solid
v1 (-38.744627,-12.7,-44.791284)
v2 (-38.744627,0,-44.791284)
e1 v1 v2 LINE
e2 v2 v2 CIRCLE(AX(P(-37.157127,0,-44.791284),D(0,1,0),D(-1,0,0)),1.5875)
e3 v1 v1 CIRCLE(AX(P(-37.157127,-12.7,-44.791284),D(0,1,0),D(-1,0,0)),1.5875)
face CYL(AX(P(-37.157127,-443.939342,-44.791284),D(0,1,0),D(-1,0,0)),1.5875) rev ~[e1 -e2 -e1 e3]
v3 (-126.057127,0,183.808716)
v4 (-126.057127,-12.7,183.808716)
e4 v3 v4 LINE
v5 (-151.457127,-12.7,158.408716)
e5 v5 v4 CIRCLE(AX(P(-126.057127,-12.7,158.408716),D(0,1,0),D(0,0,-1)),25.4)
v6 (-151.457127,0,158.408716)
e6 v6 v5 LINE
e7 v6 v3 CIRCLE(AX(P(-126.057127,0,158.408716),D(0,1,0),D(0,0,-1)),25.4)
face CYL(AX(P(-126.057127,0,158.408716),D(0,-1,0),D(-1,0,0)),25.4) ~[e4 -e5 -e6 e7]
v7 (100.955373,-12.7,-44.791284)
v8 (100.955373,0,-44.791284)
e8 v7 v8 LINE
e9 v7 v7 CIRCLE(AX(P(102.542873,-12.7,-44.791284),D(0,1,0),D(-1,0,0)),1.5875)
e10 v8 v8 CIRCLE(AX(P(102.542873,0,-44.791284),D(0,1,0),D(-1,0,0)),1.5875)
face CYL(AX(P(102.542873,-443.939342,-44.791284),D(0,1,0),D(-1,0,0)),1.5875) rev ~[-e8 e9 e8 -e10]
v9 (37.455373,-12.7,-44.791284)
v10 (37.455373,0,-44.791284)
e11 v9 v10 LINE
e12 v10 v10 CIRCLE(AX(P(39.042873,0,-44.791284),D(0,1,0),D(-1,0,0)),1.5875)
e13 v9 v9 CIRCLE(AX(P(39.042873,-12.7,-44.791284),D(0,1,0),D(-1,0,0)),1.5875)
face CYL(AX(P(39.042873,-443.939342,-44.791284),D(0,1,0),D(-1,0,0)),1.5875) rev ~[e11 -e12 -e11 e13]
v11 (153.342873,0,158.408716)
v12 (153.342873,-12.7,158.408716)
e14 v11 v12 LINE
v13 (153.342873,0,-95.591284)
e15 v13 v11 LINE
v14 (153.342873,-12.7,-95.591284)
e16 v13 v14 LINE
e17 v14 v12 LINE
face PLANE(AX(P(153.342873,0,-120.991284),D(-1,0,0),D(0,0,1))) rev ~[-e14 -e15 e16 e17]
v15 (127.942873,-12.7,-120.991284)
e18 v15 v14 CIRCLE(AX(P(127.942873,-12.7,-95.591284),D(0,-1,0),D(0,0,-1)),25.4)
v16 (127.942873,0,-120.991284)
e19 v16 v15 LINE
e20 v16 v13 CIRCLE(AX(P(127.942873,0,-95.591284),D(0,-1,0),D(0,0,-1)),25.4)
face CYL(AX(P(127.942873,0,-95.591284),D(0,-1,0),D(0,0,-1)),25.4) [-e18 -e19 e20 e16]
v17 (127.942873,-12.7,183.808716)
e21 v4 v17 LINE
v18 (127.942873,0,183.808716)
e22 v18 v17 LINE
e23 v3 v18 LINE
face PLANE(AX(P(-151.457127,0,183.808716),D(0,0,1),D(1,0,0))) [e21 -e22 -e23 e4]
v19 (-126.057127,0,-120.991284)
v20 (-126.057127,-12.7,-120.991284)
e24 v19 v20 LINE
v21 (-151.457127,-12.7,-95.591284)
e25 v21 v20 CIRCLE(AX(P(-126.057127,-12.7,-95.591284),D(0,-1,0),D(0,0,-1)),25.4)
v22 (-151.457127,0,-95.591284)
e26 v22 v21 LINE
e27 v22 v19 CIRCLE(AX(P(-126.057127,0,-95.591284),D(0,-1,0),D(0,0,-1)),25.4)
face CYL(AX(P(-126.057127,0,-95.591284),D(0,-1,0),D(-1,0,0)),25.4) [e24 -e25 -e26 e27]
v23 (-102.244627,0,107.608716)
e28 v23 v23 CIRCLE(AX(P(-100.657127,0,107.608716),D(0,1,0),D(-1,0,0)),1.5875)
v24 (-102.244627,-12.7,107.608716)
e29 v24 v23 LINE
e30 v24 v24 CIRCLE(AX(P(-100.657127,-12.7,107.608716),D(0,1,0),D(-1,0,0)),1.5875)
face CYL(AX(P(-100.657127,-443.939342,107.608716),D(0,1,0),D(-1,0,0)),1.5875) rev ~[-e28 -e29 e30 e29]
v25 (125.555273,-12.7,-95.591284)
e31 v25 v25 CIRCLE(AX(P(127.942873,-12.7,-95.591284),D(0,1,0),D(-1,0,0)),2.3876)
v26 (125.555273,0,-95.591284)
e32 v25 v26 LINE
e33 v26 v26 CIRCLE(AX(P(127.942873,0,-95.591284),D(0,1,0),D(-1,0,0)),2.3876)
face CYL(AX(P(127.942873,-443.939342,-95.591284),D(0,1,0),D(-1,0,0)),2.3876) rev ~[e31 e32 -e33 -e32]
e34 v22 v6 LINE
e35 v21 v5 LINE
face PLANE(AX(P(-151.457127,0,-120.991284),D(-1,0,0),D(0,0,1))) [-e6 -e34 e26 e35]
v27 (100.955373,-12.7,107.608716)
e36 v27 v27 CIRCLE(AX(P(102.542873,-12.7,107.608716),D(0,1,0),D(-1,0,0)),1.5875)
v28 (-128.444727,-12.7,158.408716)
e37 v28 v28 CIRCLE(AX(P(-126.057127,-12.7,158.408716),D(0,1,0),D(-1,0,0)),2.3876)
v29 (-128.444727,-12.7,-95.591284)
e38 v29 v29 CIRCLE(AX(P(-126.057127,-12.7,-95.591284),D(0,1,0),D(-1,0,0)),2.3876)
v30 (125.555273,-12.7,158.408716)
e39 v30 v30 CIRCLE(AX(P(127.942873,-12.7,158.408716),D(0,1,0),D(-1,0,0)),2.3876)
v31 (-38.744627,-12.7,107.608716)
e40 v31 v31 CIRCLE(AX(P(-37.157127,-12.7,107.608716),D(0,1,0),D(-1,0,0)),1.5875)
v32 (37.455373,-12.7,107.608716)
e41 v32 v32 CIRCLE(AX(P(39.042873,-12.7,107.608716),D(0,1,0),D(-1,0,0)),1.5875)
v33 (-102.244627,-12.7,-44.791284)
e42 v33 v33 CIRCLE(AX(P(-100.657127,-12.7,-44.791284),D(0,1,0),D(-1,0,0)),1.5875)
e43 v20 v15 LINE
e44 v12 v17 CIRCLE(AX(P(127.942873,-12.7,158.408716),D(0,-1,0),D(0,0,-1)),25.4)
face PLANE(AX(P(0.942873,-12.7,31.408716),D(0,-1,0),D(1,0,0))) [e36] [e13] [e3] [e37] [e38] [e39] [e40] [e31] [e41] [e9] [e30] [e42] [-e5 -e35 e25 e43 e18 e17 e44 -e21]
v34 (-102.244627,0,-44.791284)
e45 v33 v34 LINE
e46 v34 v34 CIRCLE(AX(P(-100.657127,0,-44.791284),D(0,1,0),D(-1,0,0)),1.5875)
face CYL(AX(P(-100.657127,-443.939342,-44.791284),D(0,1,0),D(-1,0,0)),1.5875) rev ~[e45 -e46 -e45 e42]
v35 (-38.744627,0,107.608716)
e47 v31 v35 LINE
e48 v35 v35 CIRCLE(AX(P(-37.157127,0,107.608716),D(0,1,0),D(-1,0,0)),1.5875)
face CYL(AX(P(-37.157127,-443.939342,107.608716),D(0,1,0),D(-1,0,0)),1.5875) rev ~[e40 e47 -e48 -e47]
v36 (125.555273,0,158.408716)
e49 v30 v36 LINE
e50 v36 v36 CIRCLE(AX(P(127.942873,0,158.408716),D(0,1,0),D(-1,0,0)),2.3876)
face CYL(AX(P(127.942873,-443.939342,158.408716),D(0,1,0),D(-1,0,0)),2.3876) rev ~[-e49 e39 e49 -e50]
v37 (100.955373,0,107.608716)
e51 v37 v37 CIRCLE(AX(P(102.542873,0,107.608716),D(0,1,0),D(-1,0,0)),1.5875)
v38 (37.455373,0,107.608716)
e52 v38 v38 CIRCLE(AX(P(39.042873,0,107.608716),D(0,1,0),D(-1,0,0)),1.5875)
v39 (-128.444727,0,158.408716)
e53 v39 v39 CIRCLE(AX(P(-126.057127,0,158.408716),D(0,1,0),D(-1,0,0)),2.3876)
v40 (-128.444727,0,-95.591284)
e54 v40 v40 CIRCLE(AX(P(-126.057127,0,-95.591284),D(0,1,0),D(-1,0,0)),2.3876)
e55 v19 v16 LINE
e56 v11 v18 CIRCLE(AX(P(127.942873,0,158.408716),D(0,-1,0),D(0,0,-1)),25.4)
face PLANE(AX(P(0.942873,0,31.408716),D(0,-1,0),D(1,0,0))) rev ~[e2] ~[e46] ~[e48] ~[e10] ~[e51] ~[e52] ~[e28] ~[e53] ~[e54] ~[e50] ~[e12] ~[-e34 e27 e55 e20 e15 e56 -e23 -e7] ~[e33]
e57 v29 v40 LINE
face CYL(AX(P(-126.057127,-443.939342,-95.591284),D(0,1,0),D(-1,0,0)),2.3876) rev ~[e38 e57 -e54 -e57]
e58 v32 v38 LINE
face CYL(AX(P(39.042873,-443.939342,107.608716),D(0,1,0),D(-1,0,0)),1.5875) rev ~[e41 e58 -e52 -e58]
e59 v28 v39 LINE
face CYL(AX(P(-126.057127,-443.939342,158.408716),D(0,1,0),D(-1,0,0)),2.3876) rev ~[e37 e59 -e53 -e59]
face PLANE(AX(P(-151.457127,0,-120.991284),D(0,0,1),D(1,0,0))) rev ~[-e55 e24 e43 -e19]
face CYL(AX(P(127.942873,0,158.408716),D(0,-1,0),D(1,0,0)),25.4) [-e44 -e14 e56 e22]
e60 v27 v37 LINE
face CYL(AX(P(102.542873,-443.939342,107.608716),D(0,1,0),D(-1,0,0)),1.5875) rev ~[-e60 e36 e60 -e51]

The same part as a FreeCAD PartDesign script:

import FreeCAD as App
import Part
import Sketcher

V = App.Vector
Q = App.Units.Quantity


def edges_at(feature, points):
    """Names of the edges that pass closest to the given points."""
    edges = feature.Shape.Edges
    near = lambda p: min(range(len(edges)), key=lambda i: edges[i].distToShape(Part.Vertex(*p))[0])
    return sorted({f"Edge{near(p) + 1}" for p in points})


def add_polygon(sketch, points):
    """Adds a closed chain of lines whose ends are joined by coincident constraints."""
    first, n = sketch.GeometryCount, len(points)
    for a, b in zip(points, points[1:] + points[:1]):
        sketch.addGeometry(Part.LineSegment(App.Vector(*a, 0), App.Vector(*b, 0)), False)
    for i in range(n):
        sketch.addConstraint(Sketcher.Constraint("Coincident", first + i, 2, first + (i + 1) % n, 1))

doc = App.newDocument("Part")
body = doc.addObject("PartDesign::Body", "Body")

sketch1 = body.newObject("Sketcher::SketchObject", "Sketch")
sketch1.AttachmentSupport = (doc.getObject("XZ_Plane"), [""])
sketch1.MapMode = "FlatFace"
add_polygon(sketch1, [(-151.457127, 183.808716), (-151.457127, -120.991284), (153.342873, -120.991284), (153.342873, 183.808716)])
sketch1.addConstraint([
    Sketcher.Constraint("Vertical", 0),
    Sketcher.Constraint("Horizontal", 1),
    Sketcher.Constraint("Vertical", 2),
    Sketcher.Constraint("Horizontal", 3),
    Sketcher.Constraint("Equal", 3, 0),
    Sketcher.Constraint("DistanceX", 1, 1, 1, 2, Q("12 in")),
    Sketcher.Constraint("DistanceX", 0, 2, -1, 1, 151.457127),
    Sketcher.Constraint("DistanceY", 0, 2, -1, 1, 120.991284),
])
pad1 = body.newObject("PartDesign::Pad", "Pad")
pad1.Profile = sketch1
pad1.Length = Q("0.5 in")
doc.recompute()

fillet = body.newObject("PartDesign::Fillet", "Fillet")
fillet.Base = (pad1, edges_at(pad1, [
    (-151.457, -6.35, 183.809),
    (-151.457, -6.35, -120.991),
    (153.343, -6.35, -120.991),
    (153.343, -6.35, 183.809),
]))
fillet.Radius = Q("1 in")

sketch2 = body.newObject("Sketcher::SketchObject", "Sketch001")
sketch2.AttachmentSupport = (doc.getObject("XZ_Plane"), [""])
sketch2.MapMode = "FlatFace"
sketch2.AttachmentOffset = App.Placement(V(0, 0, 0.5 * 25.4), App.Rotation())
sketch2.addGeometry([
    Part.Circle(V(-100.657127, 107.608716, 0), V(0, 0, 1), 1.5875),
    Part.Circle(V(-37.157127, 107.608716, 0), V(0, 0, 1), 1.5875),
    Part.Circle(V(39.042873, 107.608716, 0), V(0, 0, 1), 1.5875),
    Part.Circle(V(102.542873, 107.608716, 0), V(0, 0, 1), 1.5875),
    Part.Circle(V(102.542873, -44.791284, 0), V(0, 0, 1), 1.5875),
    Part.Circle(V(39.042873, -44.791284, 0), V(0, 0, 1), 1.5875),
    Part.Circle(V(-37.157127, -44.791284, 0), V(0, 0, 1), 1.5875),
    Part.Circle(V(-100.657127, -44.791284, 0), V(0, 0, 1), 1.5875),
], False)
sketch2.addConstraint([
    Sketcher.Constraint("Equal", 0, 1),
    Sketcher.Constraint("Equal", 1, 2),
    Sketcher.Constraint("Equal", 2, 3),
    Sketcher.Constraint("Equal", 3, 4),
    Sketcher.Constraint("Equal", 4, 5),
    Sketcher.Constraint("Equal", 5, 6),
    Sketcher.Constraint("Equal", 6, 7),
    Sketcher.Constraint("Horizontal", 0, 3, 1, 3),
    Sketcher.Constraint("Horizontal", 1, 3, 2, 3),
    Sketcher.Constraint("Horizontal", 2, 3, 3, 3),
    Sketcher.Constraint("Horizontal", 4, 3, 5, 3),
    Sketcher.Constraint("Horizontal", 5, 3, 6, 3),
    Sketcher.Constraint("Horizontal", 6, 3, 7, 3),
    Sketcher.Constraint("Vertical", 3, 3, 4, 3),
    Sketcher.Constraint("Vertical", 2, 3, 5, 3),
    Sketcher.Constraint("Vertical", 1, 3, 6, 3),
    Sketcher.Constraint("Vertical", 0, 3, 7, 3),
    Sketcher.Constraint("Diameter", 0, Q("0.125 in")),
    Sketcher.Constraint("DistanceX", 1, 3, 2, 3, Q("3 in")),
    Sketcher.Constraint("DistanceX", 0, 3, 3, 3, Q("8 in")),
    Sketcher.Constraint("DistanceY", 4, 3, 3, 3, Q("6 in")),
    Sketcher.Constraint("DistanceX", 0, 3, 1, 3, Q("2.5 in")),
    Sketcher.Constraint("DistanceX", 0, 3, -1, 1, 100.657127),
    Sketcher.Constraint("DistanceY", -1, 1, 0, 3, 107.608716),
])
doc.recompute()
hole = body.newObject("PartDesign::Hole", "Hole")
hole.Profile = sketch2
hole.ThreadType = "None"
hole.Diameter = Q("0.125 in")
hole.DepthType = "ThroughAll"

sketch3 = body.newObject("Sketcher::SketchObject", "Sketch002")
sketch3.AttachmentSupport = (doc.getObject("XZ_Plane"), [""])
sketch3.MapMode = "FlatFace"
sketch3.AttachmentOffset = App.Placement(V(0, 0, 0.5 * 25.4), App.Rotation())
sketch3.addGeometry([
    Part.Circle(V(-126.057127, 158.408716, 0), V(0, 0, 1), 2.3876),
    Part.Circle(V(127.942873, 158.408716, 0), V(0, 0, 1), 2.3876),
    Part.Circle(V(127.942873, -95.591284, 0), V(0, 0, 1), 2.3876),
    Part.Circle(V(-126.057127, -95.591284, 0), V(0, 0, 1), 2.3876),
], False)
sketch3.addConstraint([
    Sketcher.Constraint("Equal", 0, 1),
    Sketcher.Constraint("Equal", 1, 2),
    Sketcher.Constraint("Equal", 2, 3),
    Sketcher.Constraint("Horizontal", 0, 3, 1, 3),
    Sketcher.Constraint("Horizontal", 2, 3, 3, 3),
    Sketcher.Constraint("Vertical", 1, 3, 2, 3),
    Sketcher.Constraint("Vertical", 0, 3, 3, 3),
    Sketcher.Constraint("Diameter", 0, Q("0.188 in")),
    Sketcher.Constraint("DistanceX", 0, 3, 1, 3, Q("10 in")),
    Sketcher.Constraint("DistanceY", 2, 3, 1, 3, Q("10 in")),
    Sketcher.Constraint("DistanceX", 0, 3, -1, 1, 126.057127),
    Sketcher.Constraint("DistanceY", -1, 1, 0, 3, 158.408716),
])
doc.recompute()
hole2 = body.newObject("PartDesign::Hole", "Hole001")
hole2.Profile = sketch3
hole2.ThreadType = "None"
hole2.Diameter = Q("0.188 in")
hole2.DepthType = "ThroughAll"

doc.recompute()
